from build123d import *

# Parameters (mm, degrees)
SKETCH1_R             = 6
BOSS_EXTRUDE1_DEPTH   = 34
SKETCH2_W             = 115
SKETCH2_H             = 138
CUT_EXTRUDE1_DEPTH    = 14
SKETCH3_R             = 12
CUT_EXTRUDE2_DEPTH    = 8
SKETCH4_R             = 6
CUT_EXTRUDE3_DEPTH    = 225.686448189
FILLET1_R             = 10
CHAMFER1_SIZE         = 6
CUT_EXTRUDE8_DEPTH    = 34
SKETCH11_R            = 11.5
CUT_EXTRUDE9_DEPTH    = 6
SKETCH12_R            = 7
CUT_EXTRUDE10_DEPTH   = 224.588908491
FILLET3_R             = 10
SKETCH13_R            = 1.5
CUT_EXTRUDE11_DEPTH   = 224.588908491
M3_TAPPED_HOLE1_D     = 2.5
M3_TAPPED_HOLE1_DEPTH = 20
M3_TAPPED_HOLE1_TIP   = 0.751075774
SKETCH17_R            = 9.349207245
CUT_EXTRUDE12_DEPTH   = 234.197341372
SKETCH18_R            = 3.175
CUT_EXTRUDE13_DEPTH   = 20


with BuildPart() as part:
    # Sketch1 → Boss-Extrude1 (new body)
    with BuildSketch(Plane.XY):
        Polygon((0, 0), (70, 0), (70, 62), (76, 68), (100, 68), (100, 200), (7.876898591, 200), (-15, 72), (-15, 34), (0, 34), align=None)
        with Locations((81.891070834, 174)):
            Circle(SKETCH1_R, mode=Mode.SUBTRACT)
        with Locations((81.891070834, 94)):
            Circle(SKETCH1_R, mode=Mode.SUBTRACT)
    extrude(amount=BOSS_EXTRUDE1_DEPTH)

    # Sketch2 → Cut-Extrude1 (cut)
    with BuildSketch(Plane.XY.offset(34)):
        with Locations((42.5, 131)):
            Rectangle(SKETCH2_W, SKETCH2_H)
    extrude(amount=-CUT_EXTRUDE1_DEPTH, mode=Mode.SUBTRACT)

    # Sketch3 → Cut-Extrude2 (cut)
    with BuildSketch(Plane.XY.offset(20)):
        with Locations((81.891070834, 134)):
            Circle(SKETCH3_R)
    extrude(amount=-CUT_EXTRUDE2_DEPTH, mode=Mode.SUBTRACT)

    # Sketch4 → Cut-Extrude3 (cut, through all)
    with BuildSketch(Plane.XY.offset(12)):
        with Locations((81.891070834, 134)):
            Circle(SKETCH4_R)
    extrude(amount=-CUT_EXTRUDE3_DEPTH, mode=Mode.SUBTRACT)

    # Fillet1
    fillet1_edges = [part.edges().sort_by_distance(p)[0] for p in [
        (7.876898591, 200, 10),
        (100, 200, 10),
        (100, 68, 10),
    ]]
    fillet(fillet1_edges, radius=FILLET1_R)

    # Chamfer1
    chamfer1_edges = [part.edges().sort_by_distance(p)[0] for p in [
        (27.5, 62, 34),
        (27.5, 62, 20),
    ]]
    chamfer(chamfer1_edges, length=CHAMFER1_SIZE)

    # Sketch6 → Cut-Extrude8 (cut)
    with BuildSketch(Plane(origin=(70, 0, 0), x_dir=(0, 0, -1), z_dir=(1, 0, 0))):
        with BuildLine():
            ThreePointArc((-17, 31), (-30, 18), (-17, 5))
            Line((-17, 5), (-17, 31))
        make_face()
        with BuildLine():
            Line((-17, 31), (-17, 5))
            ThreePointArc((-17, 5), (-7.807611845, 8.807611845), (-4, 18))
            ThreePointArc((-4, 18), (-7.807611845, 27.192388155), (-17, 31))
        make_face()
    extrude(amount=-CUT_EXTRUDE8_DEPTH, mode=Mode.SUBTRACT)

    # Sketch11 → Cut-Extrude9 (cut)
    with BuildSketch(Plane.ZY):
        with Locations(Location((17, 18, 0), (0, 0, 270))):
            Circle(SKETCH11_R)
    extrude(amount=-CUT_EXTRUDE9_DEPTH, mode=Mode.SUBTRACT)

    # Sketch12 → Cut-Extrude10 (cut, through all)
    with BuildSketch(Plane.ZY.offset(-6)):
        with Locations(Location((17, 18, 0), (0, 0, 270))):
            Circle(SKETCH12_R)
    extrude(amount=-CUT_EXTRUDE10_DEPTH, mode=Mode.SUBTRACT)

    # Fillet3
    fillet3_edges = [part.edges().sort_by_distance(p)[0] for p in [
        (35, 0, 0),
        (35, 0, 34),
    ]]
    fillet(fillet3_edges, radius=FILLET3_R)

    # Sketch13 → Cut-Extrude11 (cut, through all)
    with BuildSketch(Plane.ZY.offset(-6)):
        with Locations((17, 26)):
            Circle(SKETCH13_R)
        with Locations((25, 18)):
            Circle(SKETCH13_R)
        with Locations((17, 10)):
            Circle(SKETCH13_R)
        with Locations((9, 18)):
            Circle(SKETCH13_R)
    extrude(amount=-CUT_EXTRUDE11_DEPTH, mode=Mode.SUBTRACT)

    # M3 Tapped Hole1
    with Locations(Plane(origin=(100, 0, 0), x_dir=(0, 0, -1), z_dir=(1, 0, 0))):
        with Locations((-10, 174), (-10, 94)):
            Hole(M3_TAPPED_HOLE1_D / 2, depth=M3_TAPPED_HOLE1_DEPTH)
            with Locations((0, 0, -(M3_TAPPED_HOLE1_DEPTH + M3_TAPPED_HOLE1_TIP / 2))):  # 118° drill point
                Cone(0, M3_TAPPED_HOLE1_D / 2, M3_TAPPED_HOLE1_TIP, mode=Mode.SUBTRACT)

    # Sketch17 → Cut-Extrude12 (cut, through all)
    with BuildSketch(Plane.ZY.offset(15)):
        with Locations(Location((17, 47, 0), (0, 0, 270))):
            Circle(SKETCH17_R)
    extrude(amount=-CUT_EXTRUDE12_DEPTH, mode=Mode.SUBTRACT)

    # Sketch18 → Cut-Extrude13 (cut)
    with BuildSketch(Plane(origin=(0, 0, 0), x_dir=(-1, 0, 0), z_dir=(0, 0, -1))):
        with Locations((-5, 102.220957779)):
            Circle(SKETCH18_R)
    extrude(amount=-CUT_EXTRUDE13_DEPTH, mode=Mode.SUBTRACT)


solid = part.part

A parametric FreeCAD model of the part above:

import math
import FreeCAD as App
import Part
import Sketcher
from FreeCAD import Vector
Q = App.Units.Quantity


def edges_at(feature, points):
    """Names of the edges that pass closest to the given points."""
    edges = feature.Shape.Edges
    near = lambda p: min(range(len(edges)), key=lambda i: edges[i].distToShape(Part.Vertex(*p))[0])
    return sorted({f"Edge{near(p) + 1}" for p in points})


def add_polygon(sketch, points):
    """Adds a closed chain of lines whose ends are joined by coincident constraints."""
    first, n = sketch.GeometryCount, len(points)
    for a, b in zip(points, points[1:] + points[:1]):
        sketch.addGeometry(Part.LineSegment(App.Vector(*a, 0), App.Vector(*b, 0)), False)
    for i in range(n):
        sketch.addConstraint(Sketcher.Constraint("Coincident", first + i, 2, first + (i + 1) % n, 1))

doc = App.newDocument("Part")
body = doc.addObject("PartDesign::Body", "Body")

# Sketch on XY plane
sketch1 = doc.addObject("Sketcher::SketchObject", "Sketch")
body.addObject(sketch1)
sketch1.AttachmentSupport = (doc.XY_Plane, [""])
sketch1.MapMode = "FlatFace"
add_polygon(sketch1, [(0, 0), (70, 0), (70, 62), (76, 68), (100, 68), (100, 200), (8, 200), (-15, 72), (-15, 34), (0, 34)])  # lines 0-9
sketch1.addGeometry(Part.Circle(Vector(82, 94, 0), Vector(0, 0, 1), 6), False)  # 10
sketch1.addGeometry(Part.Circle(Vector(82, 174, 0), Vector(0, 0, 1), 6), False)  # 11
sketch1.addConstraint(Sketcher.Constraint("Horizontal", 0))
sketch1.addConstraint(Sketcher.Constraint("Vertical", 1))
sketch1.addConstraint(Sketcher.Constraint("Horizontal", 3))
sketch1.addConstraint(Sketcher.Constraint("Vertical", 4))
sketch1.addConstraint(Sketcher.Constraint("Horizontal", 5))
sketch1.addConstraint(Sketcher.Constraint("Vertical", 7))
sketch1.addConstraint(Sketcher.Constraint("Horizontal", 8))
sketch1.addConstraint(Sketcher.Constraint("Vertical", 9))
sketch1.addConstraint(Sketcher.Constraint("Coincident", 9, 2, -1, 1))
sketch1.addConstraint(Sketcher.Constraint("Equal", 10, 11))
sketch1.addConstraint(Sketcher.Constraint("Vertical", 10, 3, 11, 3))
sketch1.addConstraint(Sketcher.Constraint("Diameter", 10, Q("12 mm")))
sketch1.addConstraint(Sketcher.Constraint("DistanceX", 0, 1, 0, 2, Q("70 mm")))
sketch1.addConstraint(Sketcher.Constraint("DistanceX", 3, 1, 3, 2, Q("24 mm")))
sketch1.addConstraint(Sketcher.Constraint("DistanceX", 8, 1, 8, 2, Q("15 mm")))
sketch1.addConstraint(Sketcher.Constraint("DistanceY", 1, 1, 1, 2, Q("62 mm")))
sketch1.addConstraint(Sketcher.Constraint("DistanceY", 4, 1, 4, 2, Q("132 mm")))
sketch1.addConstraint(Sketcher.Constraint("DistanceY", 7, 2, 7, 1, Q("38 mm")))
sketch1.addConstraint(Sketcher.Constraint("DistanceY", 9, 2, 9, 1, Q("34 mm")))
sketch1.addConstraint(Sketcher.Constraint("Angle", 2, Q("45 deg")))
sketch1.addConstraint(Sketcher.Constraint("DistanceY", -1, 1, 10, 3, Q("94 mm")))
sketch1.addConstraint(Sketcher.Constraint("DistanceY", -1, 1, 11, 3, Q("174 mm")))
sketch1.addConstraint(Sketcher.Constraint("DistanceX", -1, 1, 2, 2, Q("76 mm")))
sketch1.addConstraint(Sketcher.Constraint("DistanceX", 5, 2, 5, 1, Q("92.123101 mm")))
sketch1.addConstraint(Sketcher.Constraint("DistanceX", -1, 1, 10, 3, Q("81.891071 mm")))
pad1 = doc.addObject("PartDesign::Pad", "Pad")
body.addObject(pad1)
pad1.Profile = sketch1
pad1.Length = 34

# Sketch on XY plane
sketch2 = doc.addObject("Sketcher::SketchObject", "Sketch001")
body.addObject(sketch2)
sketch2.AttachmentSupport = (doc.XY_Plane, [""])
sketch2.MapMode = "FlatFace"
sketch2.AttachmentOffset = App.Placement(Vector(0, 0, 34), App.Rotation())
add_polygon(sketch2, [(-15, 200), (-15, 62), (100, 62), (100, 200)])  # lines 0-3
sketch2.addConstraint(Sketcher.Constraint("Vertical", 0))
sketch2.addConstraint(Sketcher.Constraint("Horizontal", 1))
sketch2.addConstraint(Sketcher.Constraint("Vertical", 2))
sketch2.addConstraint(Sketcher.Constraint("Horizontal", 3))
sketch2.addConstraint(Sketcher.Constraint("DistanceX", 1, 1, 1, 2, Q("115 mm")))
sketch2.addConstraint(Sketcher.Constraint("DistanceY", 0, 2, 0, 1, Q("138 mm")))
sketch2.addConstraint(Sketcher.Constraint("DistanceX", 0, 2, -1, 1, Q("15 mm")))
sketch2.addConstraint(Sketcher.Constraint("DistanceY", -1, 1, 0, 2, Q("62 mm")))
pocket1 = doc.addObject("PartDesign::Pocket", "Pocket")
body.addObject(pocket1)
pocket1.Profile = sketch2
pocket1.Length = 14

# Sketch on XY plane
sketch3 = doc.addObject("Sketcher::SketchObject", "Sketch002")
body.addObject(sketch3)
sketch3.AttachmentSupport = (doc.XY_Plane, [""])
sketch3.MapMode = "FlatFace"
sketch3.AttachmentOffset = App.Placement(Vector(0, 0, 20), App.Rotation())
sketch3.addGeometry(Part.Circle(Vector(82, 134, 0), Vector(0, 0, 1), 12), False)
sketch3.addConstraint(Sketcher.Constraint("Diameter", 0, Q("24 mm")))
sketch3.addConstraint(Sketcher.Constraint("DistanceY", -1, 1, 0, 3, Q("134 mm")))
sketch3.addConstraint(Sketcher.Constraint("DistanceX", -1, 1, 0, 3, Q("81.891071 mm")))
pocket2 = doc.addObject("PartDesign::Pocket", "Pocket001")
body.addObject(pocket2)
pocket2.Profile = sketch3
pocket2.Length = 8

# Sketch on XY plane
sketch4 = doc.addObject("Sketcher::SketchObject", "Sketch003")
body.addObject(sketch4)
sketch4.AttachmentSupport = (doc.XY_Plane, [""])
sketch4.MapMode = "FlatFace"
sketch4.AttachmentOffset = App.Placement(Vector(0, 0, 12), App.Rotation())
sketch4.addGeometry(Part.Circle(Vector(82, 134, 0), Vector(0, 0, 1), 6), False)
sketch4.addConstraint(Sketcher.Constraint("Diameter", 0, Q("12 mm")))
sketch4.addConstraint(Sketcher.Constraint("DistanceY", -1, 1, 0, 3, Q("134 mm")))
sketch4.addConstraint(Sketcher.Constraint("DistanceX", -1, 1, 0, 3, Q("81.891071 mm")))
pocket3 = doc.addObject("PartDesign::Pocket", "Pocket002")
body.addObject(pocket3)
pocket3.Profile = sketch4
pocket3.Type = "ThroughAll"
doc.recompute()

fillet = doc.addObject("PartDesign::Fillet", "Fillet")
body.addObject(fillet)
fillet.Base = (pocket3, edges_at(pocket3, [(7.877, 200, 10), (100, 200, 10), (100, 68, 10)]))
fillet.Radius = 10
doc.recompute()

chamfer = doc.addObject("PartDesign::Chamfer", "Chamfer")
body.addObject(chamfer)
chamfer.Base = (fillet, edges_at(fillet, [(27.5, 62, 34), (27.5, 62, 20)]))
chamfer.Size = 6

# Sketch on YZ plane
sketch5 = doc.addObject("Sketcher::SketchObject", "Sketch004")
body.addObject(sketch5)
sketch5.AttachmentSupport = (doc.YZ_Plane, [""])
sketch5.MapMode = "FlatFace"
sketch5.AttachmentOffset = App.Placement(Vector(0, 0, 70), App.Rotation())
sketch5.addGeometry(Part.ArcOfCircle(Part.Circle(Vector(18, 17, 0), Vector(0, 0, 1), 13), math.radians(0), math.radians(180)), False)
sketch5.addGeometry(Part.ArcOfCircle(Part.Circle(Vector(18, 17, 0), Vector(0, 0, 1), 13), math.radians(-180), math.radians(-90)), False)
sketch5.addGeometry(Part.ArcOfCircle(Part.Circle(Vector(18, 17, 0), Vector(0, 0, 1), 13), math.radians(-90), math.radians(0)), False)
sketch5.addConstraint(Sketcher.Constraint("Tangent", 0, 2, 1, 1))
sketch5.addConstraint(Sketcher.Constraint("Tangent", 1, 2, 2, 1))
sketch5.addConstraint(Sketcher.Constraint("Tangent", 2, 2, 0, 1))
sketch5.addConstraint(Sketcher.Constraint("Horizontal", 2, 3, 0, 2))
sketch5.addConstraint(Sketcher.Constraint("Horizontal", 0, 2, 2, 2))
sketch5.addConstraint(Sketcher.Constraint("Vertical", 2, 3, 1, 2))
sketch5.addConstraint(Sketcher.Constraint("Radius", 0, Q("13 mm")))
sketch5.addConstraint(Sketcher.Constraint("DistanceX", -1, 1, 0, 3, Q("18 mm")))
sketch5.addConstraint(Sketcher.Constraint("DistanceY", -1, 1, 0, 3, Q("17 mm")))
pocket4 = doc.addObject("PartDesign::Pocket", "Pocket003")
body.addObject(pocket4)
pocket4.Profile = sketch5
pocket4.Length = 34

# Sketch on YZ plane
sketch6 = doc.addObject("Sketcher::SketchObject", "Sketch005")
body.addObject(sketch6)
sketch6.AttachmentSupport = (doc.YZ_Plane, [""])
sketch6.MapMode = "FlatFace"
sketch6.addGeometry(Part.Circle(Vector(18, 17, 0), Vector(0, 0, 1), 12), False)
sketch6.addConstraint(Sketcher.Constraint("Diameter", 0, Q("23 mm")))
sketch6.addConstraint(Sketcher.Constraint("DistanceX", -1, 1, 0, 3, Q("18 mm")))
sketch6.addConstraint(Sketcher.Constraint("DistanceY", -1, 1, 0, 3, Q("17 mm")))
pocket5 = doc.addObject("PartDesign::Pocket", "Pocket004")
body.addObject(pocket5)
pocket5.Profile = sketch6
pocket5.Length = 6
pocket5.Reversed = True

# Sketch on YZ plane
sketch7 = doc.addObject("Sketcher::SketchObject", "Sketch006")
body.addObject(sketch7)
sketch7.AttachmentSupport = (doc.YZ_Plane, [""])
sketch7.MapMode = "FlatFace"
sketch7.AttachmentOffset = App.Placement(Vector(0, 0, 6), App.Rotation())
sketch7.addGeometry(Part.Circle(Vector(18, 17, 0), Vector(0, 0, 1), 7), False)
sketch7.addConstraint(Sketcher.Constraint("Diameter", 0, Q("14 mm")))
sketch7.addConstraint(Sketcher.Constraint("DistanceX", -1, 1, 0, 3, Q("18 mm")))
sketch7.addConstraint(Sketcher.Constraint("DistanceY", -1, 1, 0, 3, Q("17 mm")))
pocket6 = doc.addObject("PartDesign::Pocket", "Pocket005")
body.addObject(pocket6)
pocket6.Profile = sketch7
pocket6.Type = "ThroughAll"
pocket6.Reversed = True
doc.recompute()

fillet2 = doc.addObject("PartDesign::Fillet", "Fillet001")
body.addObject(fillet2)
fillet2.Base = (pocket6, edges_at(pocket6, [(35, 0, 0), (35, 0, 34)]))
fillet2.Radius = 10

# Sketch on YZ plane
sketch8 = doc.addObject("Sketcher::SketchObject", "Sketch007")
body.addObject(sketch8)
sketch8.AttachmentSupport = (doc.YZ_Plane, [""])
sketch8.MapMode = "FlatFace"
sketch8.AttachmentOffset = App.Placement(Vector(0, 0, 6), App.Rotation())
sketch8.addGeometry(Part.Circle(Vector(26, 17, 0), Vector(0, 0, 1), 1.5), False)
sketch8.addGeometry(Part.Circle(Vector(18, 25, 0), Vector(0, 0, 1), 1.5), False)
sketch8.addGeometry(Part.Circle(Vector(10, 17, 0), Vector(0, 0, 1), 1.5), False)
sketch8.addGeometry(Part.Circle(Vector(18, 9, 0), Vector(0, 0, 1), 1.5), False)
sketch8.addConstraint(Sketcher.Constraint("Equal", 0, 1))
sketch8.addConstraint(Sketcher.Constraint("Equal", 1, 2))
sketch8.addConstraint(Sketcher.Constraint("Equal", 2, 3))
sketch8.addConstraint(Sketcher.Constraint("Horizontal", 0, 3, 2, 3))
sketch8.addConstraint(Sketcher.Constraint("Vertical", 1, 3, 3, 3))
sketch8.addConstraint(Sketcher.Constraint("Diameter", 0, Q("3 mm")))
sketch8.addConstraint(Sketcher.Constraint("DistanceX", -1, 1, 0, 3, Q("26 mm")))
sketch8.addConstraint(Sketcher.Constraint("DistanceY", -1, 1, 0, 3, Q("17 mm")))
sketch8.addConstraint(Sketcher.Constraint("DistanceX", -1, 1, 1, 3, Q("18 mm")))
sketch8.addConstraint(Sketcher.Constraint("DistanceY", -1, 1, 1, 3, Q("25 mm")))
sketch8.addConstraint(Sketcher.Constraint("DistanceX", -1, 1, 2, 3, Q("10 mm")))
sketch8.addConstraint(Sketcher.Constraint("DistanceY", -1, 1, 3, 3, Q("9 mm")))
pocket7 = doc.addObject("PartDesign::Pocket", "Pocket006")
body.addObject(pocket7)
pocket7.Profile = sketch8
pocket7.Type = "ThroughAll"
pocket7.Reversed = True

# Sketch on YZ plane
sketch9 = doc.addObject("Sketcher::SketchObject", "Sketch008")
body.addObject(sketch9)
sketch9.AttachmentSupport = (doc.YZ_Plane, [""])
sketch9.MapMode = "FlatFace"
sketch9.AttachmentOffset = App.Placement(Vector(0, 0, 100), App.Rotation())
sketch9.addGeometry(Part.Circle(Vector(174, 10, 0), Vector(0, 0, 1), 1.2), False)
sketch9.addGeometry(Part.Circle(Vector(94, 10, 0), Vector(0, 0, 1), 1.2), False)
sketch9.addConstraint(Sketcher.Constraint("Equal", 0, 1))
sketch9.addConstraint(Sketcher.Constraint("Horizontal", 0, 3, 1, 3))
sketch9.addConstraint(Sketcher.Constraint("Diameter", 0, Q("2.5 mm")))
sketch9.addConstraint(Sketcher.Constraint("DistanceX", -1, 1, 0, 3, Q("174 mm")))
sketch9.addConstraint(Sketcher.Constraint("DistanceY", -1, 1, 0, 3, Q("10 mm")))
sketch9.addConstraint(Sketcher.Constraint("DistanceX", -1, 1, 1, 3, Q("94 mm")))
doc.recompute()
hole = doc.addObject("PartDesign::Hole", "Hole")
body.addObject(hole)
hole.Profile = sketch9
hole.ThreadType = "None"
hole.Diameter = 2.5
hole.DepthType = "Dimension"
hole.Depth = 20
hole.DrillPoint = "Angled"
hole.DrillPointAngle = 118

# Sketch on YZ plane
sketch10 = doc.addObject("Sketcher::SketchObject", "Sketch009")
body.addObject(sketch10)
sketch10.AttachmentSupport = (doc.YZ_Plane, [""])
sketch10.MapMode = "FlatFace"
sketch10.AttachmentOffset = App.Placement(Vector(0, 0, -15), App.Rotation())
sketch10.addGeometry(Part.Circle(Vector(47, 17, 0), Vector(0, 0, 1), 9), False)
sketch10.addConstraint(Sketcher.Constraint("DistanceX", -1, 1, 0, 3, Q("47 mm")))
sketch10.addConstraint(Sketcher.Constraint("DistanceY", -1, 1, 0, 3, Q("17 mm")))
sketch10.addConstraint(Sketcher.Constraint("Diameter", 0, Q("18.698414 mm")))
pocket8 = doc.addObject("PartDesign::Pocket", "Pocket007")
body.addObject(pocket8)
pocket8.Profile = sketch10
pocket8.Type = "ThroughAll"
pocket8.Reversed = True

# Sketch on XY plane
sketch11 = doc.addObject("Sketcher::SketchObject", "Sketch010")
body.addObject(sketch11)
sketch11.AttachmentSupport = (doc.XY_Plane, [""])
sketch11.MapMode = "FlatFace"
sketch11.addGeometry(Part.Circle(Vector(5, 102.2, 0), Vector(0, 0, 1), 3.2), False)
sketch11.addConstraint(Sketcher.Constraint("Diameter", 0, Q("6.35 mm")))
sketch11.addConstraint(Sketcher.Constraint("DistanceX", -1, 1, 0, 3, Q("5 mm")))
sketch11.addConstraint(Sketcher.Constraint("DistanceY", -1, 1, 0, 3, Q("102.220958 mm")))
pocket9 = doc.addObject("PartDesign::Pocket", "Pocket008")
body.addObject(pocket9)
pocket9.Profile = sketch11
pocket9.Length = 20
pocket9.Reversed = True

doc.recompute()
